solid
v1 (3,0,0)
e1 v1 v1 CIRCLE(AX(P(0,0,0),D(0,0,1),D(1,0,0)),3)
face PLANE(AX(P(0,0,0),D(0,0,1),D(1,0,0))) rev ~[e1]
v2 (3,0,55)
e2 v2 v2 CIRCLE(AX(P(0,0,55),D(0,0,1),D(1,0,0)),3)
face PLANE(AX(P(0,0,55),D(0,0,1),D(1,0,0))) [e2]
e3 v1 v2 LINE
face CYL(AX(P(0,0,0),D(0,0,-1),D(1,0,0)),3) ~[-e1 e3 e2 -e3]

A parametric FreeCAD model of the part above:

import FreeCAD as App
import Part
import Sketcher

V = App.Vector
Q = App.Units.Quantity

doc = App.newDocument("Part")
body = doc.addObject("PartDesign::Body", "Body")

# Sketch on XY plane
sketch1 = body.newObject("Sketcher::SketchObject", "Sketch")
sketch1.AttachmentSupport = (doc.getObject("XY_Plane"), [""])
sketch1.MapMode = "FlatFace"
sketch1.addGeometry(Part.Circle(V(0, 0, 0), V(0, 0, 1), 3), False)
sketch1.addConstraint([
    Sketcher.Constraint("Coincident", 0, 3, -1, 1),
    Sketcher.Constraint("Diameter", 0, Q("6 mm")),
])
pad1 = body.newObject("PartDesign::Pad", "Pad")
pad1.Profile = sketch1
pad1.Length = 55

doc.recompute()
